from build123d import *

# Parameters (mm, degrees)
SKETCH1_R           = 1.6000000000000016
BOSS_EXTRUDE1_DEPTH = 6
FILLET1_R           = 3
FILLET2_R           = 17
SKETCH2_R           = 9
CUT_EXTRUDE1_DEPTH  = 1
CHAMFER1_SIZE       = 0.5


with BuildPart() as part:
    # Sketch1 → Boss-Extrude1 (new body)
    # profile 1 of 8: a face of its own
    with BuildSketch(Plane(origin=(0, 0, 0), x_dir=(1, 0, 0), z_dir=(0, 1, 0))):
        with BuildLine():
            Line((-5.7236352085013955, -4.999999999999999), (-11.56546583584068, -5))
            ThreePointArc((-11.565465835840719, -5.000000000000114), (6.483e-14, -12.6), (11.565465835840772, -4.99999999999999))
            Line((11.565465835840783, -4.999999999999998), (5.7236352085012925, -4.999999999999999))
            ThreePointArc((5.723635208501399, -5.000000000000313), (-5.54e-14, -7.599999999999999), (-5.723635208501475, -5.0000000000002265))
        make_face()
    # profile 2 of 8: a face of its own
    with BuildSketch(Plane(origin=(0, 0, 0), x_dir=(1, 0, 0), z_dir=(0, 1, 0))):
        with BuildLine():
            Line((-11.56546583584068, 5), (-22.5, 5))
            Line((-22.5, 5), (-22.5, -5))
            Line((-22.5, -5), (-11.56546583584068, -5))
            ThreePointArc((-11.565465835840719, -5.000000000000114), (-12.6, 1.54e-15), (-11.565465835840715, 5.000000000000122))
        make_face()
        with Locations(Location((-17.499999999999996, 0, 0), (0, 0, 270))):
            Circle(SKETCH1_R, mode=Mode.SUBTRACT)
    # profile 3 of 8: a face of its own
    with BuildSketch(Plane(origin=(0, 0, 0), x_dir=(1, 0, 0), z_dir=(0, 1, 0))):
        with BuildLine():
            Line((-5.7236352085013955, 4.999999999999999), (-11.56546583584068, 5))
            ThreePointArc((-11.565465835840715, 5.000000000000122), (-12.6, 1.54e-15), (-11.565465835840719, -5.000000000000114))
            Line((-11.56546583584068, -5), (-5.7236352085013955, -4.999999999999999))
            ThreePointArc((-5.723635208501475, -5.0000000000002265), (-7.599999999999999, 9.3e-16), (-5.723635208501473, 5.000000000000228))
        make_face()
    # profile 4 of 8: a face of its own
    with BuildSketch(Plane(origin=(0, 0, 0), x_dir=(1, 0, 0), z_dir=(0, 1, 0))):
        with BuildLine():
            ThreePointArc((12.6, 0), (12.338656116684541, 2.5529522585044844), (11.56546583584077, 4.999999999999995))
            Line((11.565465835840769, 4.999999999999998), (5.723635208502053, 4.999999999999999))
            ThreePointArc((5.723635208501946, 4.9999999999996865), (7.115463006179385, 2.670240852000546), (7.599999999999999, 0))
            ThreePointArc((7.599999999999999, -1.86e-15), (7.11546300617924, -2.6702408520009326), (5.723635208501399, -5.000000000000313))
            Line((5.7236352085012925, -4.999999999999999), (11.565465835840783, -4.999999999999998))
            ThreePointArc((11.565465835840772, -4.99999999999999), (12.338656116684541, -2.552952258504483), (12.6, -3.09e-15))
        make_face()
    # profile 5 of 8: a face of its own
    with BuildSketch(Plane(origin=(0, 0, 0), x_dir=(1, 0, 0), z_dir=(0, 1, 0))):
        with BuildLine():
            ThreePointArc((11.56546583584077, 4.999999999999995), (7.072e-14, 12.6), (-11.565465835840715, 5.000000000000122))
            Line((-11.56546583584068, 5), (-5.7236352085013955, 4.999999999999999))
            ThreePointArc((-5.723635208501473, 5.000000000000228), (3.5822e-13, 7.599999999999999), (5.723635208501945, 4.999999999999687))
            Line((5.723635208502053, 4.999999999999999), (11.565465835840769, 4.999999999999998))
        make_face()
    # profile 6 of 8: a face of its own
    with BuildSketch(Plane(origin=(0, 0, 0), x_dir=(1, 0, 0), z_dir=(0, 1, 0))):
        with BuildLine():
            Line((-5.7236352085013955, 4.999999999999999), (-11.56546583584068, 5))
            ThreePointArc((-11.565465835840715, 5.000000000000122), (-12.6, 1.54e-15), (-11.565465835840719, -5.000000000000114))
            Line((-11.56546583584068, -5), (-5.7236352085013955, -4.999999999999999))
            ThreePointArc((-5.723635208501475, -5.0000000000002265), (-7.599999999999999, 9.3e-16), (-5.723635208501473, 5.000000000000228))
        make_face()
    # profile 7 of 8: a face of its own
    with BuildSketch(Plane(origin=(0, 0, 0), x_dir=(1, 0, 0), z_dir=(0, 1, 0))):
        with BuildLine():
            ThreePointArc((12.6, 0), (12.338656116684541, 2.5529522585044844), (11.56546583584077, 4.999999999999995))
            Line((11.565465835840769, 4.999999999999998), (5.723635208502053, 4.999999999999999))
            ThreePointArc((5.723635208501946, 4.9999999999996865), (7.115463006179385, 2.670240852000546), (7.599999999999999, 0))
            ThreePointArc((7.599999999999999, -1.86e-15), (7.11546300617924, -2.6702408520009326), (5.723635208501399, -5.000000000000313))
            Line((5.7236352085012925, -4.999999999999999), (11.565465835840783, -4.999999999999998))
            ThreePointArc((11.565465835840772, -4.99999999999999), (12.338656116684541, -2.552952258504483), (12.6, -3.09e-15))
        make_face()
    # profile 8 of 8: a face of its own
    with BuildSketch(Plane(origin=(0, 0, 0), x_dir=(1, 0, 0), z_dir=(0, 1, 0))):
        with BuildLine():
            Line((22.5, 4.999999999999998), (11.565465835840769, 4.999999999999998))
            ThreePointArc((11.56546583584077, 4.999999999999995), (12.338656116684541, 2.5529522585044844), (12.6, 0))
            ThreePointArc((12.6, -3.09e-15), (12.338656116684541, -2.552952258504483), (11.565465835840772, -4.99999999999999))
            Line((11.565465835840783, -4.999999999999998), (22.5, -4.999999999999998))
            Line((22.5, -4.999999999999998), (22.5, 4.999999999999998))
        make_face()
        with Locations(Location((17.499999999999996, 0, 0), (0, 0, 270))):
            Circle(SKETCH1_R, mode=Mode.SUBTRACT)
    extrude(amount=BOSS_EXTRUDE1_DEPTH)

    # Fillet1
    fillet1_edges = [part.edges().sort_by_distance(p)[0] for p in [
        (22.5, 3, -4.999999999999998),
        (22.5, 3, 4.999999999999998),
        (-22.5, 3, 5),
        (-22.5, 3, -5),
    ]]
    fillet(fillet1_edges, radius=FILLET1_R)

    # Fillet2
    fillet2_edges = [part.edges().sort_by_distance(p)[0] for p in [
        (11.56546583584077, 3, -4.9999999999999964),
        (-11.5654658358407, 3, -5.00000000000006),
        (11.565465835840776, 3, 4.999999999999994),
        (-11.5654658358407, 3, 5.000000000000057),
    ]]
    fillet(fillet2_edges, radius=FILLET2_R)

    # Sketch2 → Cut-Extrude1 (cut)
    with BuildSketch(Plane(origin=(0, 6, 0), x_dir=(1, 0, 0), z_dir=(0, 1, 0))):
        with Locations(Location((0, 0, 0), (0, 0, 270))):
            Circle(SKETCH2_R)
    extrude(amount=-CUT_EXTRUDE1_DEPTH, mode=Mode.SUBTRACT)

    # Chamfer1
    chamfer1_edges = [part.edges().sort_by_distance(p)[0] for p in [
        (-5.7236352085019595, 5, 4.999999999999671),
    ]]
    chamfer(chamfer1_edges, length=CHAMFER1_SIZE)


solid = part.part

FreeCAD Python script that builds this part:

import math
import FreeCAD as App
import Part
import Sketcher

V = App.Vector
Q = App.Units.Quantity


def edges_at(feature, points):
    """Names of the edges that pass closest to the given points."""
    edges = feature.Shape.Edges
    near = lambda p: min(range(len(edges)), key=lambda i: edges[i].distToShape(Part.Vertex(*p))[0])
    return sorted({f"Edge{near(p) + 1}" for p in points})

doc = App.newDocument("Part")
body = doc.addObject("PartDesign::Body", "Body")

# Sketch on XZ plane
sketch1 = doc.addObject("Sketcher::SketchObject", "Sketch")
body.addObject(sketch1)
sketch1.AttachmentSupport = (doc.XZ_Plane, [""])
sketch1.MapMode = "FlatFace"
sketch1.addGeometry(Part.ArcOfCircle(Part.Circle(V(0, 0, 0), V(0, 0, 1), 12.6), math.radians(23), math.radians(157)), False)
sketch1.addGeometry(Part.LineSegment(V(11.6, 5, 0), V(22.5, 5, 0)), False)
sketch1.addGeometry(Part.LineSegment(V(22.5, 5, 0), V(22.5, -5, 0)), False)
sketch1.addGeometry(Part.LineSegment(V(22.5, -5, 0), V(11.6, -5, 0)), False)
sketch1.addGeometry(Part.ArcOfCircle(Part.Circle(V(0, 0, 0), V(0, 0, 1), 12.6), math.radians(-157), math.radians(-23)), False)
sketch1.addGeometry(Part.LineSegment(V(-11.6, -5, 0), V(-22.5, -5, 0)), False)
sketch1.addGeometry(Part.LineSegment(V(-22.5, -5, 0), V(-22.5, 5, 0)), False)
sketch1.addGeometry(Part.LineSegment(V(-22.5, 5, 0), V(-11.6, 5, 0)), False)
sketch1.addGeometry(Part.Circle(V(0, 0, 0), V(0, 0, 1), 7.6), False)
sketch1.addGeometry(Part.Circle(V(-17.5, 0, 0), V(0, 0, 1), 1.6), False)
sketch1.addGeometry(Part.Circle(V(17.5, 0, 0), V(0, 0, 1), 1.6), False)
sketch1.addConstraint(Sketcher.Constraint("Coincident", 0, 1, 1, 1))
sketch1.addConstraint(Sketcher.Constraint("Coincident", 1, 2, 2, 1))
sketch1.addConstraint(Sketcher.Constraint("Coincident", 2, 2, 3, 1))
sketch1.addConstraint(Sketcher.Constraint("Coincident", 3, 2, 4, 2))
sketch1.addConstraint(Sketcher.Constraint("Coincident", 4, 1, 5, 1))
sketch1.addConstraint(Sketcher.Constraint("Coincident", 5, 2, 6, 1))
sketch1.addConstraint(Sketcher.Constraint("Coincident", 6, 2, 7, 1))
sketch1.addConstraint(Sketcher.Constraint("Coincident", 7, 2, 0, 2))
sketch1.addConstraint(Sketcher.Constraint("Horizontal", 1))
sketch1.addConstraint(Sketcher.Constraint("Vertical", 2))
sketch1.addConstraint(Sketcher.Constraint("Horizontal", 3))
sketch1.addConstraint(Sketcher.Constraint("Horizontal", 5))
sketch1.addConstraint(Sketcher.Constraint("Vertical", 6))
sketch1.addConstraint(Sketcher.Constraint("Horizontal", 7))
sketch1.addConstraint(Sketcher.Constraint("Coincident", 0, 3, -1, 1))
sketch1.addConstraint(Sketcher.Constraint("Coincident", 4, 3, -1, 1))
sketch1.addConstraint(Sketcher.Constraint("Coincident", 8, 3, -1, 1))
sketch1.addConstraint(Sketcher.Constraint("Equal", 0, 4))
sketch1.addConstraint(Sketcher.Constraint("Equal", 9, 10))
sketch1.addConstraint(Sketcher.Constraint("Symmetric", 9, 3, 10, 3, -1, 1))
sketch1.addConstraint(Sketcher.Constraint("Symmetric", 1, 2, 5, 2, -1, 1))
sketch1.addConstraint(Sketcher.Constraint("PointOnObject", 9, 3, -1))
sketch1.addConstraint(Sketcher.Constraint("Horizontal", 3, 2, 4, 1))
sketch1.addConstraint(Sketcher.Constraint("Horizontal", 1, 2, 6, 2))
sketch1.addConstraint(Sketcher.Constraint("Diameter", 8, Q("15.2 mm")))
sketch1.addConstraint(Sketcher.Constraint("Diameter", 9, Q("3.2 mm")))
sketch1.addConstraint(Sketcher.Constraint("Radius", 0, Q("12.6 mm")))
sketch1.addConstraint(Sketcher.Constraint("DistanceY", 2, 2, 2, 1, Q("10 mm")))
sketch1.addConstraint(Sketcher.Constraint("DistanceX", 9, 3, 10, 3, Q("35 mm")))
sketch1.addConstraint(Sketcher.Constraint("DistanceX", 10, 3, 1, 2, Q("5 mm")))
pad1 = doc.addObject("PartDesign::Pad", "Pad")
body.addObject(pad1)
pad1.Profile = sketch1
pad1.Length = 6
pad1.Reversed = True
doc.recompute()

fillet = doc.addObject("PartDesign::Fillet", "Fillet")
body.addObject(fillet)
fillet.Base = (pad1, edges_at(pad1, [
    (22.5, 3, -5),
    (22.5, 3, 5),
    (-22.5, 3, 5),
    (-22.5, 3, -5),
]))
fillet.Radius = 3
doc.recompute()

fillet2 = doc.addObject("PartDesign::Fillet", "Fillet001")
body.addObject(fillet2)
fillet2.Base = (fillet, edges_at(fillet, [
    (11.565, 3, -5),
    (-11.565, 3, -5),
    (11.565, 3, 5),
    (-11.565, 3, 5),
]))
fillet2.Radius = 17

# Sketch on XZ plane
sketch2 = doc.addObject("Sketcher::SketchObject", "Sketch001")
body.addObject(sketch2)
sketch2.AttachmentSupport = (doc.XZ_Plane, [""])
sketch2.MapMode = "FlatFace"
sketch2.AttachmentOffset = App.Placement(V(0, 0, -6), App.Rotation())
sketch2.addGeometry(Part.Circle(V(0, 0, 0), V(0, 0, 1), 9), False)
sketch2.addConstraint(Sketcher.Constraint("Coincident", 0, 3, -1, 1))
sketch2.addConstraint(Sketcher.Constraint("Diameter", 0, Q("18 mm")))
pocket1 = doc.addObject("PartDesign::Pocket", "Pocket")
body.addObject(pocket1)
pocket1.Profile = sketch2
pocket1.Length = 1
pocket1.Reversed = True
doc.recompute()

chamfer = doc.addObject("PartDesign::Chamfer", "Chamfer")
body.addObject(chamfer)
chamfer.Base = (pocket1, edges_at(pocket1, [(-5.724, 5, -5)]))
chamfer.Size = 0.5

doc.recompute()
